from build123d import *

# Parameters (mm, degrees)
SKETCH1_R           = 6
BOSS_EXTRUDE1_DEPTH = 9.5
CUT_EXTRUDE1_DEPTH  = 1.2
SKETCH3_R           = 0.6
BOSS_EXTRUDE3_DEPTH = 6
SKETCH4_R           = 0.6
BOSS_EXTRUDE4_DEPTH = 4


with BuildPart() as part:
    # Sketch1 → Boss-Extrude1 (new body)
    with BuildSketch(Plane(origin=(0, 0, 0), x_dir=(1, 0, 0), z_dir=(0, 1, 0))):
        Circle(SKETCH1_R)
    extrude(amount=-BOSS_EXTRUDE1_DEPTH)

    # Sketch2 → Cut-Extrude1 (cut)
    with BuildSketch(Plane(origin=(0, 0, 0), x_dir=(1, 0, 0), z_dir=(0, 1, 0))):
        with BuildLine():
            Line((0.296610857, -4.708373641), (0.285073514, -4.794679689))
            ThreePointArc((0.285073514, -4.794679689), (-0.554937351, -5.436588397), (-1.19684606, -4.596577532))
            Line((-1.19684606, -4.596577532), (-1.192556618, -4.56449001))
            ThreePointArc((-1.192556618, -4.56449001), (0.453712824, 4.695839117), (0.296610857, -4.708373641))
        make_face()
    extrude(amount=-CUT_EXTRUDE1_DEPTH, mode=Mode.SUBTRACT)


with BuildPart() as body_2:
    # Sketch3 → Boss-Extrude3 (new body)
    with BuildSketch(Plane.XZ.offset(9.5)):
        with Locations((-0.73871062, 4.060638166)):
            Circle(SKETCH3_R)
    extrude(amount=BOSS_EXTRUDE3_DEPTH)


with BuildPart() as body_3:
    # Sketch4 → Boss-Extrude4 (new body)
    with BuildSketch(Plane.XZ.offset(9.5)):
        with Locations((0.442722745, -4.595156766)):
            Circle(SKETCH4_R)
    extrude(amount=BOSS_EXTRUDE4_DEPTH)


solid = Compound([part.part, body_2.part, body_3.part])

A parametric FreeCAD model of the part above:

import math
import FreeCAD as App
import Part
import Sketcher

V = App.Vector
Q = App.Units.Quantity

doc = App.newDocument("Part")
params = doc.addObject("Spreadsheet::Sheet", "Params")
for row, (alias, value) in enumerate([
    ("sketch1_diameter", "12 mm"),
    ("pad1_length", "9.5 mm"),
    ("pocket1_length", "1.2 mm"),
    ("sketch3_diameter", "1.2 mm"),
    ("pad2_length", "6 mm"),
    ("sketch4_diameter", "1.2 mm"),
    ("pad3_length", "4 mm"),
], start=1):
    params.set(f"A{row}", alias)
    params.set(f"B{row}", "=" + value)
    params.setAlias(f"B{row}", alias)

body = doc.addObject("PartDesign::Body", "Body")

# Sketch on XZ plane
sketch1 = body.newObject("Sketcher::SketchObject", "Sketch")
sketch1.AttachmentSupport = (doc.getObject("XZ_Plane"), [""])
sketch1.MapMode = "FlatFace"
sketch1.addGeometry(Part.Circle(V(0, 0, 0), V(0, 0, 1), 6), False)
sketch1.addConstraint([
    Sketcher.Constraint("Coincident", 0, 3, -1, 1),
    Sketcher.Constraint("Diameter", 0, Q("12 mm")),
])
sketch1.setExpression("Constraints[1]", "Params.sketch1_diameter")
pad1 = body.newObject("PartDesign::Pad", "Pad")
pad1.Profile = sketch1
pad1.setExpression("Length", "Params.pad1_length")

# Sketch on XZ plane
sketch2 = body.newObject("Sketcher::SketchObject", "Sketch001")
sketch2.AttachmentSupport = (doc.getObject("XZ_Plane"), [""])
sketch2.MapMode = "FlatFace"
sketch2.addGeometry([
    Part.LineSegment(V(0.285074, 4.79468, 0), V(0.296611, 4.708374, 0)),
    Part.ArcOfCircle(Part.Circle(V(0, 0, 0), V(0, 0, 1), 4.717707), math.radians(104.642263), math.radians(446.395332)),
    Part.LineSegment(V(-1.192557, 4.56449, 0), V(-1.196846, 4.596578, 0)),
    Part.ArcOfCircle(Part.Circle(V(-0.455886, 4.695629, 0), V(0, 0, 1), 0.747551), math.radians(7.614126), math.radians(187.614126)),
], False)
sketch2.addConstraint([
    Sketcher.Constraint("Coincident", 0, 2, 1, 2),
    Sketcher.Constraint("Coincident", 1, 1, 2, 1),
    Sketcher.Constraint("Tangent", 2, 2, 3, 2),
    Sketcher.Constraint("Tangent", 3, 1, 0, 1),
    Sketcher.Constraint("Coincident", 1, 3, -1, 1),
    Sketcher.Constraint("Parallel", 0, 2),
    Sketcher.Constraint("Radius", 3, Q("0.747551 mm")),
    Sketcher.Constraint("Radius", 1, Q("4.717707 mm")),
    Sketcher.Constraint("DistanceY", -1, 1, 3, 3, Q("4.695629 mm")),
    Sketcher.Constraint("DistanceX", -1, 1, 0, 2, Q("0.296611 mm")),
    Sketcher.Constraint("DistanceY", -1, 1, 1, 1, Q("4.56449 mm")),
])
pocket1 = body.newObject("PartDesign::Pocket", "Pocket")
pocket1.Profile = sketch2
pocket1.setExpression("Length", "Params.pocket1_length")
pocket1.Reversed = True
body2 = doc.addObject("PartDesign::Body", "Body001")

# Sketch on XZ plane
sketch3 = body2.newObject("Sketcher::SketchObject", "Sketch002")
sketch3.AttachmentSupport = (doc.getObject("XZ_Plane001"), [""])
sketch3.MapMode = "FlatFace"
sketch3.AttachmentOffset = App.Placement(V(0, 0, 9.5), App.Rotation())
sketch3.addGeometry(Part.Circle(V(-0.738711, 4.060638, 0), V(0, 0, 1), 0.6), False)
sketch3.addConstraint([
    Sketcher.Constraint("Diameter", 0, Q("1.2 mm")),
    Sketcher.Constraint("DistanceX", 0, 3, -1, 1, Q("0.738711 mm")),
    Sketcher.Constraint("DistanceY", -1, 1, 0, 3, Q("4.060638 mm")),
])
sketch3.setExpression("Constraints[0]", "Params.sketch3_diameter")
pad2 = body2.newObject("PartDesign::Pad", "Pad001")
pad2.Profile = sketch3
pad2.setExpression("Length", "Params.pad2_length")
body3 = doc.addObject("PartDesign::Body", "Body002")

# Sketch on XZ plane
sketch4 = body3.newObject("Sketcher::SketchObject", "Sketch003")
sketch4.AttachmentSupport = (doc.getObject("XZ_Plane002"), [""])
sketch4.MapMode = "FlatFace"
sketch4.AttachmentOffset = App.Placement(V(0, 0, 9.5), App.Rotation())
sketch4.addGeometry(Part.Circle(V(0.442723, -4.595157, 0), V(0, 0, 1), 0.6), False)
sketch4.addConstraint([
    Sketcher.Constraint("Diameter", 0, Q("1.2 mm")),
    Sketcher.Constraint("DistanceX", -1, 1, 0, 3, Q("0.442723 mm")),
    Sketcher.Constraint("DistanceY", 0, 3, -1, 1, Q("4.595157 mm")),
])
sketch4.setExpression("Constraints[0]", "Params.sketch4_diameter")
pad3 = body3.newObject("PartDesign::Pad", "Pad002")
pad3.Profile = sketch4
pad3.setExpression("Length", "Params.pad3_length")

doc.recompute()
